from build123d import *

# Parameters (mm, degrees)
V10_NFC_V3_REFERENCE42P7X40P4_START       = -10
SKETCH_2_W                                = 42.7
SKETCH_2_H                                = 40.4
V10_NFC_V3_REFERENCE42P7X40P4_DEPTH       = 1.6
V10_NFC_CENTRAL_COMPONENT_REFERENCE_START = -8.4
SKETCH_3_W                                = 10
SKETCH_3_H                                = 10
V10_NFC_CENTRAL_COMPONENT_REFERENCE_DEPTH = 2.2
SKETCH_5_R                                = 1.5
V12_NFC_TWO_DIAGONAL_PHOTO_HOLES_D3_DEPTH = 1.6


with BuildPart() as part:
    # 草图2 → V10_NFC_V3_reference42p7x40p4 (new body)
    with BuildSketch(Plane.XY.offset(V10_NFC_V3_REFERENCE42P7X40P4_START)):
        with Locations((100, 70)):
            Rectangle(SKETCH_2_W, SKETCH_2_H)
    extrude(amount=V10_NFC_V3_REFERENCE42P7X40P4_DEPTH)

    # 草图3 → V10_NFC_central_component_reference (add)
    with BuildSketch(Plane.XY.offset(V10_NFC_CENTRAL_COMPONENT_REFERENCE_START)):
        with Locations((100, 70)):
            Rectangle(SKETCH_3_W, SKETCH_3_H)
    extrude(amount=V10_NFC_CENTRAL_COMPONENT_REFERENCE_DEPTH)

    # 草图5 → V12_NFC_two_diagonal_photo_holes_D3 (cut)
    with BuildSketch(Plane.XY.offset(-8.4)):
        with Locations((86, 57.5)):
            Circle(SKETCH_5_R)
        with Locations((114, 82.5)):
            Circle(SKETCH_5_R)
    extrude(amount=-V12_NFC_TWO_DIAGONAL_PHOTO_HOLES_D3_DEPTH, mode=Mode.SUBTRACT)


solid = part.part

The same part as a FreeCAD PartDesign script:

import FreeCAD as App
import Part
import Sketcher
from FreeCAD import Vector

doc = App.newDocument("Part")
body = doc.addObject("PartDesign::Body", "Body")

sketch1 = doc.addObject("Sketcher::SketchObject", "Sketch")
body.addObject(sketch1)
sketch1.AttachmentSupport = (doc.XY_Plane, [""])
sketch1.MapMode = "FlatFace"
sketch1.AttachmentOffset = App.Placement(Vector(0, 0, -10), App.Rotation())
sketch1.addGeometry([
    Part.LineSegment(Vector(79, 90, 0), Vector(79, 50, 0)),
    Part.LineSegment(Vector(79, 50, 0), Vector(121, 50, 0)),
    Part.LineSegment(Vector(121, 50, 0), Vector(121, 90, 0)),
    Part.LineSegment(Vector(121, 90, 0), Vector(79, 90, 0)),
], False)
sketch1.addConstraint([
    Sketcher.Constraint("Coincident", 0, 2, 1, 1),
    Sketcher.Constraint("Coincident", 1, 2, 2, 1),
    Sketcher.Constraint("Coincident", 2, 2, 3, 1),
    Sketcher.Constraint("Coincident", 3, 2, 0, 1),
    Sketcher.Constraint("Vertical", 0),
    Sketcher.Constraint("Horizontal", 1),
    Sketcher.Constraint("Vertical", 2),
    Sketcher.Constraint("Horizontal", 3),
    Sketcher.Constraint("DistanceX", 1, 1, 1, 2, 42.7),
    Sketcher.Constraint("DistanceY", 0, 2, 0, 1, 40.4),
    Sketcher.Constraint("DistanceY", -1, 1, 0, 2, 49.8),
    Sketcher.Constraint("DistanceX", -1, 1, 0, 2, 78.65),
])
pad1 = doc.addObject("PartDesign::Pad", "Pad")
body.addObject(pad1)
pad1.Profile = sketch1
pad1.Length = 1.6

sketch2 = doc.addObject("Sketcher::SketchObject", "Sketch001")
body.addObject(sketch2)
sketch2.AttachmentSupport = (doc.XY_Plane, [""])
sketch2.MapMode = "FlatFace"
sketch2.AttachmentOffset = App.Placement(Vector(0, 0, -8.4), App.Rotation())
sketch2.addGeometry([
    Part.LineSegment(Vector(95, 75, 0), Vector(95, 65, 0)),
    Part.LineSegment(Vector(95, 65, 0), Vector(105, 65, 0)),
    Part.LineSegment(Vector(105, 65, 0), Vector(105, 75, 0)),
    Part.LineSegment(Vector(105, 75, 0), Vector(95, 75, 0)),
], False)
sketch2.addConstraint([
    Sketcher.Constraint("Coincident", 0, 2, 1, 1),
    Sketcher.Constraint("Coincident", 1, 2, 2, 1),
    Sketcher.Constraint("Coincident", 2, 2, 3, 1),
    Sketcher.Constraint("Coincident", 3, 2, 0, 1),
    Sketcher.Constraint("Vertical", 0),
    Sketcher.Constraint("Horizontal", 1),
    Sketcher.Constraint("Vertical", 2),
    Sketcher.Constraint("Horizontal", 3),
    Sketcher.Constraint("Equal", 3, 0),
    Sketcher.Constraint("DistanceX", 1, 1, 1, 2, 10.0),
    Sketcher.Constraint("DistanceX", -1, 1, 0, 2, 95.0),
    Sketcher.Constraint("DistanceY", -1, 1, 0, 2, 65.0),
])
pad2 = doc.addObject("PartDesign::Pad", "Pad001")
body.addObject(pad2)
pad2.Profile = sketch2
pad2.Length = 2.2

sketch3 = doc.addObject("Sketcher::SketchObject", "Sketch002")
body.addObject(sketch3)
sketch3.AttachmentSupport = (doc.XY_Plane, [""])
sketch3.MapMode = "FlatFace"
sketch3.AttachmentOffset = App.Placement(Vector(0, 0, -8.4), App.Rotation())
sketch3.addGeometry([
    Part.Circle(Vector(86, 57.5, 0), Vector(0, 0, 1), 1.5),
    Part.Circle(Vector(114, 82.5, 0), Vector(0, 0, 1), 1.5),
], False)
sketch3.addConstraint([
    Sketcher.Constraint("Equal", 0, 1),
    Sketcher.Constraint("Diameter", 0, 3.0),
    Sketcher.Constraint("DistanceX", -1, 1, 0, 3, 86.0),
    Sketcher.Constraint("DistanceX", -1, 1, 1, 3, 114.0),
    Sketcher.Constraint("DistanceY", 0, 3, 1, 3, 25.0),
    Sketcher.Constraint("DistanceY", -1, 1, 0, 3, 57.5),
])
pocket1 = doc.addObject("PartDesign::Pocket", "Pocket")
body.addObject(pocket1)
pocket1.Profile = sketch3
pocket1.Length = 1.6

doc.recompute()
